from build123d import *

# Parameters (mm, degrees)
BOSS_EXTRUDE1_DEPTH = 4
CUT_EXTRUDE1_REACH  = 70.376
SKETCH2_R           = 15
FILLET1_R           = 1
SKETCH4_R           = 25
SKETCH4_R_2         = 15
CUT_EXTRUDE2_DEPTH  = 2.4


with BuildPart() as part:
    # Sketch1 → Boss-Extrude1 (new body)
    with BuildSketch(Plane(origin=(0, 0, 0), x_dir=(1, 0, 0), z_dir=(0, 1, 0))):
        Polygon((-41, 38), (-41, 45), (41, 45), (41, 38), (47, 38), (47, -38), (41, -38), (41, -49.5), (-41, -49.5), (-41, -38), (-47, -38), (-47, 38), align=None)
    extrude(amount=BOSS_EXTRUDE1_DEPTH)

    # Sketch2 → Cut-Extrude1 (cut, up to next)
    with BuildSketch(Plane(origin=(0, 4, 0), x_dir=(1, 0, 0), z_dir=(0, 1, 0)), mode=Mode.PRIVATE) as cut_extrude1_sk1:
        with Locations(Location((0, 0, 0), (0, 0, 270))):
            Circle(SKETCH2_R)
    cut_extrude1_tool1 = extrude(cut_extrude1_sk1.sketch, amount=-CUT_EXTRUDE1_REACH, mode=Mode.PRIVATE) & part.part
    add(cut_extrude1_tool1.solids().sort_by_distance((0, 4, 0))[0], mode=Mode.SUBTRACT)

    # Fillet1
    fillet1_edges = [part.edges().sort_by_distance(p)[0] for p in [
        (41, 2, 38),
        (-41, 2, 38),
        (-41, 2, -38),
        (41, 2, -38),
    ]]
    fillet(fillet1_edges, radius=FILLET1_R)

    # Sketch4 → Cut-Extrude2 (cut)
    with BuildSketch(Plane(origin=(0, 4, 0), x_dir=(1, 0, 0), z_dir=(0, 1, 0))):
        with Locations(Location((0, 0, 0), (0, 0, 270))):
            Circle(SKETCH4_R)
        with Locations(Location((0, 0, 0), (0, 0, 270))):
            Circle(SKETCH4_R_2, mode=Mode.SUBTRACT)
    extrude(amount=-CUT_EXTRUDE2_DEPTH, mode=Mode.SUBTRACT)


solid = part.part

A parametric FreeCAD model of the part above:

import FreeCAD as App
import Part
import Sketcher
from FreeCAD import Vector


def edges_at(feature, points):
    """Names of the edges that pass closest to the given points."""
    edges = feature.Shape.Edges
    near = lambda p: min(range(len(edges)), key=lambda i: edges[i].distToShape(Part.Vertex(*p))[0])
    return sorted({f"Edge{near(p) + 1}" for p in points})


def add_polygon(sketch, points):
    """Adds a closed chain of lines whose ends are joined by coincident constraints."""
    first, n = sketch.GeometryCount, len(points)
    for a, b in zip(points, points[1:] + points[:1]):
        sketch.addGeometry(Part.LineSegment(App.Vector(*a, 0), App.Vector(*b, 0)), False)
    for i in range(n):
        sketch.addConstraint(Sketcher.Constraint("Coincident", first + i, 2, first + (i + 1) % n, 1))

doc = App.newDocument("Part")
body = doc.addObject("PartDesign::Body", "Body")

# Sketch on XZ plane
sketch1 = body.newObject("Sketcher::SketchObject", "Sketch")
sketch1.AttachmentSupport = (doc.getObject("XZ_Plane"), [""])
sketch1.MapMode = "FlatFace"
add_polygon(sketch1, [(-41, -45), (-41, -38), (-47, -38), (-47, 38), (-41, 38), (-41, 50), (41, 50), (41, 38), (47, 38), (47, -38), (41, -38), (41, -45)])  # lines 0-11
sketch1.addConstraint(Sketcher.Constraint("Vertical", 0))
sketch1.addConstraint(Sketcher.Constraint("Horizontal", 1))
sketch1.addConstraint(Sketcher.Constraint("Vertical", 2))
sketch1.addConstraint(Sketcher.Constraint("Horizontal", 3))
sketch1.addConstraint(Sketcher.Constraint("Vertical", 4))
sketch1.addConstraint(Sketcher.Constraint("Horizontal", 5))
sketch1.addConstraint(Sketcher.Constraint("Vertical", 6))
sketch1.addConstraint(Sketcher.Constraint("Horizontal", 7))
sketch1.addConstraint(Sketcher.Constraint("Vertical", 8))
sketch1.addConstraint(Sketcher.Constraint("Horizontal", 9))
sketch1.addConstraint(Sketcher.Constraint("Vertical", 10))
sketch1.addConstraint(Sketcher.Constraint("Horizontal", 11))
sketch1.addConstraint(Sketcher.Constraint("Symmetric", 0, 2, 6, 2, -1, 1))
sketch1.addConstraint(Sketcher.Constraint("Symmetric", 2, 2, 8, 2, -1, 1))
sketch1.addConstraint(Sketcher.Constraint("Symmetric", 3, 2, 6, 2, -2))
sketch1.addConstraint(Sketcher.Constraint("Vertical", 6, 2, 9, 2))
sketch1.addConstraint(Sketcher.Constraint("DistanceX", 1, 2, 1, 1, 6.0))
sketch1.addConstraint(Sketcher.Constraint("DistanceX", 5, 1, 5, 2, 82.0))
sketch1.addConstraint(Sketcher.Constraint("DistanceY", 0, 1, 0, 2, 7.0))
sketch1.addConstraint(Sketcher.Constraint("DistanceY", 2, 1, 2, 2, 76.0))
sketch1.addConstraint(Sketcher.Constraint("DistanceY", 4, 1, 4, 2, 11.5))
pad1 = body.newObject("PartDesign::Pad", "Pad")
pad1.Profile = sketch1
pad1.Length = 4
pad1.Reversed = True

# Sketch on XZ plane
sketch2 = body.newObject("Sketcher::SketchObject", "Sketch001")
sketch2.AttachmentSupport = (doc.getObject("XZ_Plane"), [""])
sketch2.MapMode = "FlatFace"
sketch2.AttachmentOffset = App.Placement(Vector(0, 0, -4), App.Rotation())
sketch2.addGeometry(Part.Circle(Vector(0, 0, 0), Vector(0, 0, 1), 15), False)
sketch2.addConstraint(Sketcher.Constraint("Coincident", 0, 3, -1, 1))
sketch2.addConstraint(Sketcher.Constraint("Diameter", 0, 30.0))
pocket1 = body.newObject("PartDesign::Pocket", "Pocket")
pocket1.Profile = sketch2
pocket1.Type = "UpToFirst"
pocket1.Reversed = True
doc.recompute()

fillet = body.newObject("PartDesign::Fillet", "Fillet")
fillet.Base = (pocket1, edges_at(pocket1, [
    (41, 2, 38),
    (-41, 2, 38),
    (-41, 2, -38),
    (41, 2, -38),
]))
fillet.Radius = 1

# Sketch on XZ plane
sketch3 = body.newObject("Sketcher::SketchObject", "Sketch002")
sketch3.AttachmentSupport = (doc.getObject("XZ_Plane"), [""])
sketch3.MapMode = "FlatFace"
sketch3.AttachmentOffset = App.Placement(Vector(0, 0, -4), App.Rotation())
sketch3.addGeometry(Part.Circle(Vector(0, 0, 0), Vector(0, 0, 1), 25), False)
sketch3.addGeometry(Part.Circle(Vector(0, 0, 0), Vector(0, 0, 1), 15), False)
sketch3.addConstraint(Sketcher.Constraint("Coincident", 0, 3, -1, 1))
sketch3.addConstraint(Sketcher.Constraint("Coincident", 1, 3, -1, 1))
sketch3.addConstraint(Sketcher.Constraint("Diameter", 0, 50.0))
sketch3.addConstraint(Sketcher.Constraint("Diameter", 1, 30.0))
pocket2 = body.newObject("PartDesign::Pocket", "Pocket001")
pocket2.Profile = sketch3
pocket2.Length = 2.4
pocket2.Reversed = True

doc.recompute()
